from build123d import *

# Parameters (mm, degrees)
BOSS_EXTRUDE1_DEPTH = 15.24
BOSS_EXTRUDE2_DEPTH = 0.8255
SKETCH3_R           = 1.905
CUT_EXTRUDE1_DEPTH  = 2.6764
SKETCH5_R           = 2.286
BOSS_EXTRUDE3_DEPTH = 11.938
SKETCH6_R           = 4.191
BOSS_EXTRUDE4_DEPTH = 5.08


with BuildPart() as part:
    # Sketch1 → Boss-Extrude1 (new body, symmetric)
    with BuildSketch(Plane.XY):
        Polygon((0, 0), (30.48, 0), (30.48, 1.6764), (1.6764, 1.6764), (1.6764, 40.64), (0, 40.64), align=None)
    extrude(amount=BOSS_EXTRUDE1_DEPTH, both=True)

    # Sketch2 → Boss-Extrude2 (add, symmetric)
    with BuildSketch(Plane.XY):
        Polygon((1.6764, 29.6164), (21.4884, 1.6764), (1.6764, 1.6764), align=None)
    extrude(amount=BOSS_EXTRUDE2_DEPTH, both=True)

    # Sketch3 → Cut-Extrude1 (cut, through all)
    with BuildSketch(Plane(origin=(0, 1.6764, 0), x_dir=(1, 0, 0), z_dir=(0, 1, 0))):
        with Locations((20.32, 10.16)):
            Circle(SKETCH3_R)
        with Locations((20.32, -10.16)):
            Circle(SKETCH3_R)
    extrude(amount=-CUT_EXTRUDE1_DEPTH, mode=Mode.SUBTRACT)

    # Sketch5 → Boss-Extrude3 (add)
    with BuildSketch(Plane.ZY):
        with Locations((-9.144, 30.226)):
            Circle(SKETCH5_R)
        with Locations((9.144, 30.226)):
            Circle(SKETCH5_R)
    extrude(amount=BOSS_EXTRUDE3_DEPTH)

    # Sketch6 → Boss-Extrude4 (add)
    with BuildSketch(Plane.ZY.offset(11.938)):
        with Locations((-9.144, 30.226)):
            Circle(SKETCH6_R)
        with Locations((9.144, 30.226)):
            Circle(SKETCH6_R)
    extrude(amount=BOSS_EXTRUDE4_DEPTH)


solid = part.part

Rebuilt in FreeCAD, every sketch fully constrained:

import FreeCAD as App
import Part
import Sketcher

V = App.Vector
Q = App.Units.Quantity

doc = App.newDocument("Part")
body = doc.addObject("PartDesign::Body", "Body")

# Sketch on XY plane
sketch1 = body.newObject("Sketcher::SketchObject", "Sketch")
sketch1.AttachmentSupport = (doc.getObject("XY_Plane"), [""])
sketch1.MapMode = "FlatFace"
sketch1.addGeometry(Part.LineSegment(V(0, 0, 0), V(30.5, 0, 0)), False)
sketch1.addGeometry(Part.LineSegment(V(30.5, 0, 0), V(30.5, 1.7, 0)), False)
sketch1.addGeometry(Part.LineSegment(V(30.5, 1.7, 0), V(1.7, 1.7, 0)), False)
sketch1.addGeometry(Part.LineSegment(V(1.7, 1.7, 0), V(1.7, 40.6, 0)), False)
sketch1.addGeometry(Part.LineSegment(V(1.7, 40.6, 0), V(0, 40.6, 0)), False)
sketch1.addGeometry(Part.LineSegment(V(0, 40.6, 0), V(0, 0, 0)), False)
sketch1.addConstraint(Sketcher.Constraint("Coincident", 0, 2, 1, 1))
sketch1.addConstraint(Sketcher.Constraint("Coincident", 1, 2, 2, 1))
sketch1.addConstraint(Sketcher.Constraint("Coincident", 2, 2, 3, 1))
sketch1.addConstraint(Sketcher.Constraint("Coincident", 3, 2, 4, 1))
sketch1.addConstraint(Sketcher.Constraint("Coincident", 4, 2, 5, 1))
sketch1.addConstraint(Sketcher.Constraint("Coincident", 5, 2, 0, 1))
sketch1.addConstraint(Sketcher.Constraint("Horizontal", 0))
sketch1.addConstraint(Sketcher.Constraint("Vertical", 1))
sketch1.addConstraint(Sketcher.Constraint("Horizontal", 2))
sketch1.addConstraint(Sketcher.Constraint("Vertical", 3))
sketch1.addConstraint(Sketcher.Constraint("Horizontal", 4))
sketch1.addConstraint(Sketcher.Constraint("Vertical", 5))
sketch1.addConstraint(Sketcher.Constraint("Coincident", 5, 2, -1, 1))
sketch1.addConstraint(Sketcher.Constraint("Equal", 4, 1))
sketch1.addConstraint(Sketcher.Constraint("DistanceX", 0, 1, 0, 2, Q("1.2 in")))
sketch1.addConstraint(Sketcher.Constraint("DistanceY", 5, 2, 5, 1, Q("1.6 in")))
sketch1.addConstraint(Sketcher.Constraint("DistanceX", 2, 2, 2, 1, Q("1.134 in")))
pad1 = body.newObject("PartDesign::Pad", "Pad")
pad1.Profile = sketch1
pad1.Length = Q("1.2 in")
pad1.Midplane = True

# Sketch on XY plane
sketch2 = body.newObject("Sketcher::SketchObject", "Sketch001")
sketch2.AttachmentSupport = (doc.getObject("XY_Plane"), [""])
sketch2.MapMode = "FlatFace"
sketch2.addGeometry(Part.LineSegment(V(21, 2, 0), V(2, 30, 0)), False)
sketch2.addGeometry(Part.LineSegment(V(2, 30, 0), V(2, 2, 0)), False)
sketch2.addGeometry(Part.LineSegment(V(2, 2, 0), V(21, 2, 0)), False)
sketch2.addConstraint(Sketcher.Constraint("Coincident", 0, 2, 1, 1))
sketch2.addConstraint(Sketcher.Constraint("Coincident", 1, 2, 2, 1))
sketch2.addConstraint(Sketcher.Constraint("Coincident", 2, 2, 0, 1))
sketch2.addConstraint(Sketcher.Constraint("Vertical", 1))
sketch2.addConstraint(Sketcher.Constraint("Horizontal", 2))
sketch2.addConstraint(Sketcher.Constraint("DistanceY", 1, 2, 1, 1, Q("1.1 in")))
sketch2.addConstraint(Sketcher.Constraint("DistanceX", 2, 1, 2, 2, Q("0.78 in")))
sketch2.addConstraint(Sketcher.Constraint("DistanceX", -1, 1, 0, 2, Q("0.066 in")))
sketch2.addConstraint(Sketcher.Constraint("DistanceY", -1, 1, 0, 2, Q("1.166 in")))
pad2 = body.newObject("PartDesign::Pad", "Pad001")
pad2.Profile = sketch2
pad2.Length = Q("0.065 in")
pad2.Midplane = True

# Sketch on XZ plane
sketch3 = body.newObject("Sketcher::SketchObject", "Sketch002")
sketch3.AttachmentSupport = (doc.getObject("XZ_Plane"), [""])
sketch3.MapMode = "FlatFace"
sketch3.AttachmentOffset = App.Placement(V(0, 0, -0.066 * 25.4), App.Rotation())
sketch3.addGeometry(Part.Circle(V(20.3, -10.2, 0), V(0, 0, 1), 1.9), False)
sketch3.addGeometry(Part.Circle(V(20.3, 10.2, 0), V(0, 0, 1), 1.9), False)
sketch3.addConstraint(Sketcher.Constraint("Equal", 0, 1))
sketch3.addConstraint(Sketcher.Constraint("Symmetric", 0, 3, 1, 3, -1))
sketch3.addConstraint(Sketcher.Constraint("Diameter", 0, Q("0.15 in")))
sketch3.addConstraint(Sketcher.Constraint("DistanceX", -1, 1, 0, 3, Q("0.8 in")))
sketch3.addConstraint(Sketcher.Constraint("DistanceY", 0, 3, -1, 1, Q("0.4 in")))
pocket1 = body.newObject("PartDesign::Pocket", "Pocket")
pocket1.Profile = sketch3
pocket1.Type = "ThroughAll"
pocket1.Reversed = True

# Sketch on YZ plane
sketch4 = body.newObject("Sketcher::SketchObject", "Sketch003")
sketch4.AttachmentSupport = (doc.getObject("YZ_Plane"), [""])
sketch4.MapMode = "FlatFace"
sketch4.addGeometry(Part.Circle(V(30.2, -9.1, 0), V(0, 0, 1), 2.3), False)
sketch4.addGeometry(Part.Circle(V(30.2, 9.1, 0), V(0, 0, 1), 2.3), False)
sketch4.addConstraint(Sketcher.Constraint("Equal", 0, 1))
sketch4.addConstraint(Sketcher.Constraint("Symmetric", 0, 3, 1, 3, -1))
sketch4.addConstraint(Sketcher.Constraint("Diameter", 0, Q("0.18 in")))
sketch4.addConstraint(Sketcher.Constraint("DistanceX", -1, 1, 0, 3, Q("1.19 in")))
sketch4.addConstraint(Sketcher.Constraint("DistanceY", 0, 3, -1, 1, Q("0.36 in")))
pad3 = body.newObject("PartDesign::Pad", "Pad002")
pad3.Profile = sketch4
pad3.Length = Q("0.47 in")
pad3.Reversed = True

# Sketch on YZ plane
sketch5 = body.newObject("Sketcher::SketchObject", "Sketch004")
sketch5.AttachmentSupport = (doc.getObject("YZ_Plane"), [""])
sketch5.MapMode = "FlatFace"
sketch5.AttachmentOffset = App.Placement(V(0, 0, -0.47 * 25.4), App.Rotation())
sketch5.addGeometry(Part.Circle(V(30.2, -9.1, 0), V(0, 0, 1), 4.2), False)
sketch5.addGeometry(Part.Circle(V(30.2, 9.1, 0), V(0, 0, 1), 4.2), False)
sketch5.addConstraint(Sketcher.Constraint("Equal", 0, 1))
sketch5.addConstraint(Sketcher.Constraint("Symmetric", 0, 3, 1, 3, -1))
sketch5.addConstraint(Sketcher.Constraint("Diameter", 0, Q("0.33 in")))
sketch5.addConstraint(Sketcher.Constraint("DistanceX", -1, 1, 0, 3, Q("1.19 in")))
sketch5.addConstraint(Sketcher.Constraint("DistanceY", 0, 3, -1, 1, Q("0.36 in")))
pad4 = body.newObject("PartDesign::Pad", "Pad003")
pad4.Profile = sketch5
pad4.Length = Q("0.2 in")
pad4.Reversed = True

doc.recompute()
